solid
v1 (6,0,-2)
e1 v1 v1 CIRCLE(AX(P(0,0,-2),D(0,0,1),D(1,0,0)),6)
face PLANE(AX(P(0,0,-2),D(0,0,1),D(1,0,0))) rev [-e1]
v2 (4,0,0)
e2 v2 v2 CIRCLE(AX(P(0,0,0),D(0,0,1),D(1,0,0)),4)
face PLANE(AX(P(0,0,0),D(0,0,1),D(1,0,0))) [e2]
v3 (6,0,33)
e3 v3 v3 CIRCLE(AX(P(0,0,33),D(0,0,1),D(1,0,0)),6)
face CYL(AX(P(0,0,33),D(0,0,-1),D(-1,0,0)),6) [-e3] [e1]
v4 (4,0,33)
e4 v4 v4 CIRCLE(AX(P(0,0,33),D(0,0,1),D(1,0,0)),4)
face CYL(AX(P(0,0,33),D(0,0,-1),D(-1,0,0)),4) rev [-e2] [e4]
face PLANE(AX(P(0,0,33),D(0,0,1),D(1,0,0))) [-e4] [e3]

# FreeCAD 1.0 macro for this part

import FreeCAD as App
import Part
import Sketcher

doc = App.newDocument("Part")
body = doc.addObject("PartDesign::Body", "Body")

sketch1 = body.newObject("Sketcher::SketchObject", "Sketch")
sketch1.AttachmentSupport = (doc.getObject("XY_Plane"), [""])
sketch1.MapMode = "FlatFace"
sketch1.addGeometry([
    Part.Circle(App.Vector(0, 0, 0), App.Vector(0, 0, 1), 6),
    Part.Circle(App.Vector(0, 0, 0), App.Vector(0, 0, 1), 4),
], False)
sketch1.addConstraint([
    Sketcher.Constraint("Coincident", 0, 3, -1, 1),
    Sketcher.Constraint("Coincident", 1, 3, -1, 1),
    Sketcher.Constraint("Diameter", 0, 12.0),
    Sketcher.Constraint("Diameter", 1, 8.0),
])
pad1 = body.newObject("PartDesign::Pad", "Pad")
pad1.Profile = sketch1
pad1.Length = 33

sketch2 = body.newObject("Sketcher::SketchObject", "Sketch001")
sketch2.AttachmentSupport = (doc.getObject("XY_Plane"), [""])
sketch2.MapMode = "FlatFace"
sketch2.AttachmentOffset = App.Placement(App.Vector(0, 0, -2), App.Rotation())
sketch2.addGeometry(Part.Circle(App.Vector(0, 0, 0), App.Vector(0, 0, 1), 6), False)
sketch2.addConstraint([
    Sketcher.Constraint("Coincident", 0, 3, -1, 1),
    Sketcher.Constraint("Diameter", 0, 12.0),
])
pad2 = body.newObject("PartDesign::Pad", "Pad001")
pad2.Profile = sketch2
pad2.Length = 2

doc.recompute()
